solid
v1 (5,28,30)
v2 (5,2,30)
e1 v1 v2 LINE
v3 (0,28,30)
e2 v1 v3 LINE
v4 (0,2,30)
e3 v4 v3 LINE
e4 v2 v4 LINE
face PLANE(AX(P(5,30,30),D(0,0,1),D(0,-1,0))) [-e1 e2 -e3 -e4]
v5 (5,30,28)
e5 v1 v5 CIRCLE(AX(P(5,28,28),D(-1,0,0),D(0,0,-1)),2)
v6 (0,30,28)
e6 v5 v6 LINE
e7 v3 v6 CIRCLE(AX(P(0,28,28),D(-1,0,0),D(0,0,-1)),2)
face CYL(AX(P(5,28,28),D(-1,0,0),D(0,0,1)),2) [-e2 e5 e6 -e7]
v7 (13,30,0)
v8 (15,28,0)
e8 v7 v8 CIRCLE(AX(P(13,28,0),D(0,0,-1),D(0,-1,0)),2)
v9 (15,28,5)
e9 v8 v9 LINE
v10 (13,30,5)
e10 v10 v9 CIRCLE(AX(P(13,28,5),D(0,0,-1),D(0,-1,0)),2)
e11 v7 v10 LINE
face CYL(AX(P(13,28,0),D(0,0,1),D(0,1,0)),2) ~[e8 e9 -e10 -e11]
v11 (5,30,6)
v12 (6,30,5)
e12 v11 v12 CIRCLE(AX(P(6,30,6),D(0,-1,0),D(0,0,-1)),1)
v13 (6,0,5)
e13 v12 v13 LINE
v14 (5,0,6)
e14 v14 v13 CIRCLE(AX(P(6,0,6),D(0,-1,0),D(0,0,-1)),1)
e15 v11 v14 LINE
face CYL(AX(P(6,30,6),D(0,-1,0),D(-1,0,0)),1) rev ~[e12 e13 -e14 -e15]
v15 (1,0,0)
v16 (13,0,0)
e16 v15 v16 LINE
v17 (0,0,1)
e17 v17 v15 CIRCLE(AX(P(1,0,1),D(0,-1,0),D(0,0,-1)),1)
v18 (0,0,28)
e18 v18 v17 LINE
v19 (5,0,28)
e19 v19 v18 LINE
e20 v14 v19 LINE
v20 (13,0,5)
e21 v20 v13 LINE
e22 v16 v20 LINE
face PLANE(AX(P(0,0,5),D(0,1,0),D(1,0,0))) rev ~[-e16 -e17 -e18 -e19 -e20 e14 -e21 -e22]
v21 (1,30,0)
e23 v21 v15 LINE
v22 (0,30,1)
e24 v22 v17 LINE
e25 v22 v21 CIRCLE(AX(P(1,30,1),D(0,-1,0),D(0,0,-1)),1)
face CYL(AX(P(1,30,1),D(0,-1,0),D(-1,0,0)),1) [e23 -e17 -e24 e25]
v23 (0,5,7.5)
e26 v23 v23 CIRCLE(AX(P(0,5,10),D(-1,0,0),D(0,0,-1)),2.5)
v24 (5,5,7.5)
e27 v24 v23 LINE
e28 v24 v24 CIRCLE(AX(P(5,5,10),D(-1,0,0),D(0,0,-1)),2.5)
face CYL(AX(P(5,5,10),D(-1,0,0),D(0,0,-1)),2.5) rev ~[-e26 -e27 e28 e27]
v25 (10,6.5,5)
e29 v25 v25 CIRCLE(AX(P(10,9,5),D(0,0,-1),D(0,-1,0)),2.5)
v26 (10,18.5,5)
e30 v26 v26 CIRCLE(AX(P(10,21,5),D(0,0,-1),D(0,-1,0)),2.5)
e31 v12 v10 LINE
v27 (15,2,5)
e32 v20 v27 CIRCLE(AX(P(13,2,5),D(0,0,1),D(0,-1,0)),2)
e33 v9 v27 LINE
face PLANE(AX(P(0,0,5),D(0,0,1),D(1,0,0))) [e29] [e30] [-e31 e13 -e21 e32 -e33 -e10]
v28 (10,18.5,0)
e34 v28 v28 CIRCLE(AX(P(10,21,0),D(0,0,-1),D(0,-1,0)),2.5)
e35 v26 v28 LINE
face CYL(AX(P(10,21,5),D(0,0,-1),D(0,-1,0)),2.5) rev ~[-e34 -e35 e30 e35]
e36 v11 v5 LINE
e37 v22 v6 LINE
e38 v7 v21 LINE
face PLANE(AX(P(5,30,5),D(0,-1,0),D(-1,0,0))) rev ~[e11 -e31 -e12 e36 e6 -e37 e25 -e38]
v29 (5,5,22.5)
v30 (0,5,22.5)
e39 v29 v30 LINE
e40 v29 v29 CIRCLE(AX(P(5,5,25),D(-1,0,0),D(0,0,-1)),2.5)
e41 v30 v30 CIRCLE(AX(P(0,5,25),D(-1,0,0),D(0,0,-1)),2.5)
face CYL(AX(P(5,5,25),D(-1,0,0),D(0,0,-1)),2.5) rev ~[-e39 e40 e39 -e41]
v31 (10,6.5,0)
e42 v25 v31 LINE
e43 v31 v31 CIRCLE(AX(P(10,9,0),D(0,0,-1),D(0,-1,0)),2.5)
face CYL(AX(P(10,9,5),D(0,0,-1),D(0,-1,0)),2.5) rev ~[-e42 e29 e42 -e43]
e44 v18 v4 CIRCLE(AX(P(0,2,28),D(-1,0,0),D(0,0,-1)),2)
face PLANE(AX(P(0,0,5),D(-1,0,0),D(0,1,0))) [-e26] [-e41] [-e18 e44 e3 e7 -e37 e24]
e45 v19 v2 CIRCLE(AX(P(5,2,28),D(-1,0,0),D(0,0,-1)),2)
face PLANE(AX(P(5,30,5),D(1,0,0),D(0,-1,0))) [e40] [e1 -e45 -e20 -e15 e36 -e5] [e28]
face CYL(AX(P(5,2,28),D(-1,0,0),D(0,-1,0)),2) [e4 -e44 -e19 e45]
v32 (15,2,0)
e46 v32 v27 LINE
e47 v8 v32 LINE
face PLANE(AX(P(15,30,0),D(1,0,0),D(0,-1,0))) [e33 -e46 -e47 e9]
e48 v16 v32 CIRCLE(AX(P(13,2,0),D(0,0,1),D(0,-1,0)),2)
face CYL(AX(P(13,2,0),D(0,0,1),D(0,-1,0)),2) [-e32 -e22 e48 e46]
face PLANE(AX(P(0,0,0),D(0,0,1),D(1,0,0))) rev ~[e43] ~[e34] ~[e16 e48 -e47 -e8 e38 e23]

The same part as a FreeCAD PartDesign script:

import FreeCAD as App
import Part
import Sketcher
from FreeCAD import Vector
Q = App.Units.Quantity


def edges_at(feature, points):
    """Names of the edges that pass closest to the given points."""
    edges = feature.Shape.Edges
    near = lambda p: min(range(len(edges)), key=lambda i: edges[i].distToShape(Part.Vertex(*p))[0])
    return sorted({f"Edge{near(p) + 1}" for p in points})

doc = App.newDocument("Part")
body = doc.addObject("PartDesign::Body", "Body")

sketch1 = body.newObject("Sketcher::SketchObject", "Sketch")
sketch1.AttachmentSupport = (doc.getObject("XY_Plane"), [""])
sketch1.MapMode = "FlatFace"
sketch1.addGeometry(Part.LineSegment(Vector(0, 30, 0), Vector(0, 0, 0)), False)
sketch1.addGeometry(Part.LineSegment(Vector(0, 0, 0), Vector(15, 0, 0)), False)
sketch1.addGeometry(Part.LineSegment(Vector(15, 0, 0), Vector(15, 30, 0)), False)
sketch1.addGeometry(Part.LineSegment(Vector(15, 30, 0), Vector(0, 30, 0)), False)
sketch1.addConstraint(Sketcher.Constraint("Coincident", 0, 2, 1, 1))
sketch1.addConstraint(Sketcher.Constraint("Coincident", 1, 2, 2, 1))
sketch1.addConstraint(Sketcher.Constraint("Coincident", 2, 2, 3, 1))
sketch1.addConstraint(Sketcher.Constraint("Coincident", 3, 2, 0, 1))
sketch1.addConstraint(Sketcher.Constraint("Vertical", 0))
sketch1.addConstraint(Sketcher.Constraint("Horizontal", 1))
sketch1.addConstraint(Sketcher.Constraint("Vertical", 2))
sketch1.addConstraint(Sketcher.Constraint("Horizontal", 3))
sketch1.addConstraint(Sketcher.Constraint("Coincident", 0, 2, -1, 1))
sketch1.addConstraint(Sketcher.Constraint("DistanceY", 0, 2, 0, 1, Q("30 mm")))
sketch1.addConstraint(Sketcher.Constraint("DistanceX", 1, 1, 1, 2, Q("15 mm")))
pad1 = body.newObject("PartDesign::Pad", "Pad")
pad1.Profile = sketch1
pad1.Length = 5

sketch2 = body.newObject("Sketcher::SketchObject", "Sketch001")
sketch2.AttachmentSupport = (doc.getObject("XY_Plane"), [""])
sketch2.MapMode = "FlatFace"
sketch2.AttachmentOffset = App.Placement(Vector(0, 0, 5), App.Rotation())
sketch2.addGeometry(Part.Circle(Vector(10, 21, 0), Vector(0, 0, 1), 2.5), False)
sketch2.addGeometry(Part.Circle(Vector(10, 9, 0), Vector(0, 0, 1), 2.5), False)
sketch2.addConstraint(Sketcher.Constraint("Equal", 0, 1))
sketch2.addConstraint(Sketcher.Constraint("Vertical", 0, 3, 1, 3))
sketch2.addConstraint(Sketcher.Constraint("Diameter", 0, Q("5 mm")))
sketch2.addConstraint(Sketcher.Constraint("DistanceX", -1, 1, 0, 3, Q("10 mm")))
sketch2.addConstraint(Sketcher.Constraint("DistanceY", -1, 1, 0, 3, Q("21 mm")))
sketch2.addConstraint(Sketcher.Constraint("DistanceY", -1, 1, 1, 3, Q("9 mm")))
doc.recompute()
hole = body.newObject("PartDesign::Hole", "Hole")
hole.Profile = sketch2
hole.ThreadType = "None"
hole.Diameter = 5
hole.DepthType = "Dimension"
hole.Depth = 8
hole.DrillPoint = "Flat"

sketch3 = body.newObject("Sketcher::SketchObject", "Sketch002")
sketch3.AttachmentSupport = (doc.getObject("XY_Plane"), [""])
sketch3.MapMode = "FlatFace"
sketch3.AttachmentOffset = App.Placement(Vector(0, 0, 5), App.Rotation())
sketch3.addGeometry(Part.LineSegment(Vector(5, 0, 0), Vector(5, 30, 0)), False)
sketch3.addGeometry(Part.LineSegment(Vector(5, 30, 0), Vector(0, 30, 0)), False)
sketch3.addGeometry(Part.LineSegment(Vector(0, 30, 0), Vector(0, 0, 0)), False)
sketch3.addGeometry(Part.LineSegment(Vector(0, 0, 0), Vector(5, 0, 0)), False)
sketch3.addConstraint(Sketcher.Constraint("Coincident", 0, 2, 1, 1))
sketch3.addConstraint(Sketcher.Constraint("Coincident", 1, 2, 2, 1))
sketch3.addConstraint(Sketcher.Constraint("Coincident", 2, 2, 3, 1))
sketch3.addConstraint(Sketcher.Constraint("Coincident", 3, 2, 0, 1))
sketch3.addConstraint(Sketcher.Constraint("Vertical", 0))
sketch3.addConstraint(Sketcher.Constraint("Horizontal", 1))
sketch3.addConstraint(Sketcher.Constraint("Vertical", 2))
sketch3.addConstraint(Sketcher.Constraint("Horizontal", 3))
sketch3.addConstraint(Sketcher.Constraint("Coincident", 2, 2, -1, 1))
sketch3.addConstraint(Sketcher.Constraint("DistanceX", 1, 2, 1, 1, Q("5 mm")))
sketch3.addConstraint(Sketcher.Constraint("DistanceY", 0, 1, 0, 2, Q("30 mm")))
pad2 = body.newObject("PartDesign::Pad", "Pad001")
pad2.Profile = sketch3
pad2.Length = 30

sketch4 = body.newObject("Sketcher::SketchObject", "Sketch003")
sketch4.AttachmentSupport = (doc.getObject("YZ_Plane"), [""])
sketch4.MapMode = "FlatFace"
sketch4.AttachmentOffset = App.Placement(Vector(0, 0, 5), App.Rotation())
sketch4.addGeometry(Part.Circle(Vector(5, 25, 0), Vector(0, 0, 1), 2.5), False)
sketch4.addGeometry(Part.Circle(Vector(5, 10, 0), Vector(0, 0, 1), 2.5), False)
sketch4.addConstraint(Sketcher.Constraint("Equal", 0, 1))
sketch4.addConstraint(Sketcher.Constraint("Vertical", 0, 3, 1, 3))
sketch4.addConstraint(Sketcher.Constraint("Diameter", 0, Q("5 mm")))
sketch4.addConstraint(Sketcher.Constraint("DistanceX", -1, 1, 0, 3, Q("5 mm")))
sketch4.addConstraint(Sketcher.Constraint("DistanceY", -1, 1, 0, 3, Q("25 mm")))
sketch4.addConstraint(Sketcher.Constraint("DistanceY", -1, 1, 1, 3, Q("10 mm")))
doc.recompute()
hole2 = body.newObject("PartDesign::Hole", "Hole001")
hole2.Profile = sketch4
hole2.ThreadType = "None"
hole2.Diameter = 5
hole2.DepthType = "Dimension"
hole2.Depth = 8
hole2.DrillPoint = "Flat"

sketch5 = body.newObject("Sketcher::SketchObject", "Sketch004")
sketch5.AttachmentSupport = (doc.getObject("YZ_Plane"), [""])
sketch5.MapMode = "FlatFace"
sketch5.AttachmentOffset = App.Placement(Vector(0, 0, 5), App.Rotation())
sketch5.addGeometry(Part.LineSegment(Vector(0, 30, 0), Vector(30, 30, 0)), False)
sketch5.addGeometry(Part.LineSegment(Vector(30, 30, 0), Vector(30, 35, 0)), False)
sketch5.addGeometry(Part.LineSegment(Vector(30, 35, 0), Vector(0, 35, 0)), False)
sketch5.addGeometry(Part.LineSegment(Vector(0, 35, 0), Vector(0, 30, 0)), False)
sketch5.addConstraint(Sketcher.Constraint("Coincident", 0, 2, 1, 1))
sketch5.addConstraint(Sketcher.Constraint("Coincident", 1, 2, 2, 1))
sketch5.addConstraint(Sketcher.Constraint("Coincident", 2, 2, 3, 1))
sketch5.addConstraint(Sketcher.Constraint("Coincident", 3, 2, 0, 1))
sketch5.addConstraint(Sketcher.Constraint("Horizontal", 0))
sketch5.addConstraint(Sketcher.Constraint("Vertical", 1))
sketch5.addConstraint(Sketcher.Constraint("Horizontal", 2))
sketch5.addConstraint(Sketcher.Constraint("Vertical", 3))
sketch5.addConstraint(Sketcher.Constraint("PointOnObject", 2, 2, -2))
sketch5.addConstraint(Sketcher.Constraint("DistanceY", 1, 1, 1, 2, Q("5 mm")))
sketch5.addConstraint(Sketcher.Constraint("DistanceX", 0, 1, 0, 2, Q("30 mm")))
sketch5.addConstraint(Sketcher.Constraint("DistanceY", -1, 1, 0, 2, Q("30 mm")))
pocket1 = body.newObject("PartDesign::Pocket", "Pocket")
pocket1.Profile = sketch5
pocket1.Type = "ThroughAll"
doc.recompute()

fillet = body.newObject("PartDesign::Fillet", "Fillet")
fillet.Base = (pocket1, edges_at(pocket1, [
    (2.5, 30, 30),
    (2.5, 0, 30),
    (15, 30, 2.5),
    (15, 0, 2.5),
]))
fillet.Radius = 2
doc.recompute()

fillet2 = body.newObject("PartDesign::Fillet", "Fillet001")
fillet2.Base = (fillet, edges_at(fillet, [(0, 15, 0), (5, 15, 5)]))
fillet2.Radius = 1

doc.recompute()
